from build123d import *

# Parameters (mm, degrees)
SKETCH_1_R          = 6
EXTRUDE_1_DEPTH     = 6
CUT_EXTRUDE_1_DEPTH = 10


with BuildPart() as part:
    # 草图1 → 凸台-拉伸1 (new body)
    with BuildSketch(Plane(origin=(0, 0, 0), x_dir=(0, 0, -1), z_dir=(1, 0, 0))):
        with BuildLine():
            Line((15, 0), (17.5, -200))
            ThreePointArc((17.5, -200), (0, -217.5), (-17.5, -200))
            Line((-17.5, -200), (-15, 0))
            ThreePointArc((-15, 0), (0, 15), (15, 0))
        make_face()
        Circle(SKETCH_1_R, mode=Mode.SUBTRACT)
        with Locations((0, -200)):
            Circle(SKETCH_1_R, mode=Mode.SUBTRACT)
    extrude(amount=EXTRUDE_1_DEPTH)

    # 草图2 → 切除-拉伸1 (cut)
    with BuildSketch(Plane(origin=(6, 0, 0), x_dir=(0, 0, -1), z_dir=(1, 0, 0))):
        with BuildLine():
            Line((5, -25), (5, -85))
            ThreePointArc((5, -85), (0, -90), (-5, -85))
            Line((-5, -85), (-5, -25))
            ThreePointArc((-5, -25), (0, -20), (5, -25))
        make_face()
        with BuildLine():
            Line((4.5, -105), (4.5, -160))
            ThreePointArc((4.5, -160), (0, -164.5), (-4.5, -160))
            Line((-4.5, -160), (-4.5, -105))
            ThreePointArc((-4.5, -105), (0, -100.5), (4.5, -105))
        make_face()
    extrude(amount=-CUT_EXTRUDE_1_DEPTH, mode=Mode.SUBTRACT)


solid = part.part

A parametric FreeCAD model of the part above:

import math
import FreeCAD as App
import Part
import Sketcher
from FreeCAD import Vector

doc = App.newDocument("Part")
params = doc.addObject("Spreadsheet::Sheet", "Params")
for row, (alias, value) in enumerate([
    ("sketch1_diameter", "12 mm"),
    ("sketch1_radius", "15 mm"),
    ("sketch1_radius2", "17.5 mm"),
    ("pad1_length", "6 mm"),
    ("sketch2_radius", "5 mm"),
    ("sketch2_radius2", "4.5 mm"),
    ("sketch2_width", "60 mm"),
    ("sketch2_width2", "55 mm"),
    ("pocket1_length", "10 mm"),
], start=1):
    params.set(f"A{row}", alias)
    params.set(f"B{row}", "=" + value)
    params.setAlias(f"B{row}", alias)

body = doc.addObject("PartDesign::Body", "Body")

sketch1 = body.newObject("Sketcher::SketchObject", "Sketch")
sketch1.AttachmentSupport = (doc.getObject("YZ_Plane"), [""])
sketch1.MapMode = "FlatFace"
sketch1.addGeometry(Part.LineSegment(Vector(-200, -18, 0), Vector(0, -15, 0)), False)
sketch1.addGeometry(Part.ArcOfCircle(Part.Circle(Vector(0, 0, 0), Vector(0, 0, 1), 15), math.radians(-90), math.radians(90)), False)
sketch1.addGeometry(Part.LineSegment(Vector(0, 15, 0), Vector(-200, 18, 0)), False)
sketch1.addGeometry(Part.ArcOfCircle(Part.Circle(Vector(-200, 0, 0), Vector(0, 0, 1), 18), math.radians(90), math.radians(270)), False)
sketch1.addGeometry(Part.Circle(Vector(-200, 0, 0), Vector(0, 0, 1), 6), False)
sketch1.addGeometry(Part.Circle(Vector(0, 0, 0), Vector(0, 0, 1), 6), False)
sketch1.addConstraint(Sketcher.Constraint("Coincident", 0, 2, 1, 1))
sketch1.addConstraint(Sketcher.Constraint("Coincident", 1, 2, 2, 1))
sketch1.addConstraint(Sketcher.Constraint("Coincident", 2, 2, 3, 1))
sketch1.addConstraint(Sketcher.Constraint("Coincident", 3, 2, 0, 1))
sketch1.addConstraint(Sketcher.Constraint("Coincident", 1, 3, -1, 1))
sketch1.addConstraint(Sketcher.Constraint("Coincident", 5, 3, -1, 1))
sketch1.addConstraint(Sketcher.Constraint("Coincident", 4, 3, 3, 3))
sketch1.addConstraint(Sketcher.Constraint("Equal", 4, 5))
sketch1.addConstraint(Sketcher.Constraint("Symmetric", 2, 2, 3, 2, -1))
sketch1.addConstraint(Sketcher.Constraint("PointOnObject", 0, 2, -2))
sketch1.addConstraint(Sketcher.Constraint("PointOnObject", 1, 2, -2))
sketch1.addConstraint(Sketcher.Constraint("Vertical", 4, 3, 2, 2))
sketch1.addConstraint(Sketcher.Constraint("Diameter", 4, 12.0))
sketch1.addConstraint(Sketcher.Constraint("Radius", 1, 15.0))
sketch1.addConstraint(Sketcher.Constraint("Radius", 3, 17.5))
sketch1.addConstraint(Sketcher.Constraint("DistanceX", 3, 3, -1, 1, 200.0))
sketch1.setExpression("Constraints[12]", "Params.sketch1_diameter")
sketch1.setExpression("Constraints[13]", "Params.sketch1_radius")
sketch1.setExpression("Constraints[14]", "Params.sketch1_radius2")
pad1 = body.newObject("PartDesign::Pad", "Pad")
pad1.Profile = sketch1
pad1.setExpression("Length", "Params.pad1_length")

sketch2 = body.newObject("Sketcher::SketchObject", "Sketch001")
sketch2.AttachmentSupport = (doc.getObject("YZ_Plane"), [""])
sketch2.MapMode = "FlatFace"
sketch2.AttachmentOffset = App.Placement(Vector(0, 0, 6), App.Rotation())
sketch2.addGeometry(Part.LineSegment(Vector(-85, -5, 0), Vector(-25, -5, 0)), False)
sketch2.addGeometry(Part.ArcOfCircle(Part.Circle(Vector(-25, 0, 0), Vector(0, 0, 1), 5), math.radians(-90), math.radians(90)), False)
sketch2.addGeometry(Part.LineSegment(Vector(-25, 5, 0), Vector(-85, 5, 0)), False)
sketch2.addGeometry(Part.ArcOfCircle(Part.Circle(Vector(-85, 0, 0), Vector(0, 0, 1), 5), math.radians(90), math.radians(270)), False)
sketch2.addGeometry(Part.LineSegment(Vector(-160, -4.5, 0), Vector(-105, -4.5, 0)), False)
sketch2.addGeometry(Part.ArcOfCircle(Part.Circle(Vector(-105, 0, 0), Vector(0, 0, 1), 4.5), math.radians(-90), math.radians(90)), False)
sketch2.addGeometry(Part.LineSegment(Vector(-105, 4.5, 0), Vector(-160, 4.5, 0)), False)
sketch2.addGeometry(Part.ArcOfCircle(Part.Circle(Vector(-160, 0, 0), Vector(0, 0, 1), 4.5), math.radians(90), math.radians(270)), False)
sketch2.addConstraint(Sketcher.Constraint("Tangent", 0, 2, 1, 1))
sketch2.addConstraint(Sketcher.Constraint("Tangent", 1, 2, 2, 1))
sketch2.addConstraint(Sketcher.Constraint("Tangent", 2, 2, 3, 1))
sketch2.addConstraint(Sketcher.Constraint("Tangent", 3, 2, 0, 1))
sketch2.addConstraint(Sketcher.Constraint("Tangent", 4, 2, 5, 1))
sketch2.addConstraint(Sketcher.Constraint("Tangent", 5, 2, 6, 1))
sketch2.addConstraint(Sketcher.Constraint("Tangent", 6, 2, 7, 1))
sketch2.addConstraint(Sketcher.Constraint("Tangent", 7, 2, 4, 1))
sketch2.addConstraint(Sketcher.Constraint("Horizontal", 0))
sketch2.addConstraint(Sketcher.Constraint("Horizontal", 2))
sketch2.addConstraint(Sketcher.Constraint("Horizontal", 4))
sketch2.addConstraint(Sketcher.Constraint("Horizontal", 6))
sketch2.addConstraint(Sketcher.Constraint("PointOnObject", 1, 3, -1))
sketch2.addConstraint(Sketcher.Constraint("PointOnObject", 5, 3, -1))
sketch2.addConstraint(Sketcher.Constraint("Radius", 1, 5.0))
sketch2.addConstraint(Sketcher.Constraint("Radius", 5, 4.5))
sketch2.addConstraint(Sketcher.Constraint("DistanceX", 0, 1, 0, 2, 60.0))
sketch2.addConstraint(Sketcher.Constraint("DistanceX", 4, 1, 4, 2, 55.0))
sketch2.addConstraint(Sketcher.Constraint("DistanceX", 1, 3, -1, 1, 25.0))
sketch2.addConstraint(Sketcher.Constraint("DistanceX", 5, 3, -1, 1, 105.0))
sketch2.setExpression("Constraints[14]", "Params.sketch2_radius")
sketch2.setExpression("Constraints[15]", "Params.sketch2_radius2")
sketch2.setExpression("Constraints[16]", "Params.sketch2_width")
sketch2.setExpression("Constraints[17]", "Params.sketch2_width2")
pocket1 = body.newObject("PartDesign::Pocket", "Pocket")
pocket1.Profile = sketch2
pocket1.setExpression("Length", "Params.pocket1_length")

doc.recompute()
